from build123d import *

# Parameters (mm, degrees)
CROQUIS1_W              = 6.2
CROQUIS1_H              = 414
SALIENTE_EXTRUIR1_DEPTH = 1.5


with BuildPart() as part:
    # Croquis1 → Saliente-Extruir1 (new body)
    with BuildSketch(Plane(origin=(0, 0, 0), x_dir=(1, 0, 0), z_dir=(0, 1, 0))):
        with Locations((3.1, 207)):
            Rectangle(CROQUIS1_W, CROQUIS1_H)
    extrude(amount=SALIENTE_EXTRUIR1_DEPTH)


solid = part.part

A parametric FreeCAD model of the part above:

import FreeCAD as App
import Part
import Sketcher
from FreeCAD import Vector

doc = App.newDocument("Part")
body = doc.addObject("PartDesign::Body", "Body")

sketch1 = body.newObject("Sketcher::SketchObject", "Sketch")
sketch1.AttachmentSupport = (doc.getObject("XZ_Plane"), [""])
sketch1.MapMode = "FlatFace"
sketch1.addGeometry(Part.LineSegment(Vector(0, -414, 0), Vector(0, 0, 0)), False)
sketch1.addGeometry(Part.LineSegment(Vector(0, 0, 0), Vector(6, 0, 0)), False)
sketch1.addGeometry(Part.LineSegment(Vector(6, 0, 0), Vector(6, -414, 0)), False)
sketch1.addGeometry(Part.LineSegment(Vector(6, -414, 0), Vector(0, -414, 0)), False)
sketch1.addConstraint(Sketcher.Constraint("Coincident", 0, 2, 1, 1))
sketch1.addConstraint(Sketcher.Constraint("Coincident", 1, 2, 2, 1))
sketch1.addConstraint(Sketcher.Constraint("Coincident", 2, 2, 3, 1))
sketch1.addConstraint(Sketcher.Constraint("Coincident", 3, 2, 0, 1))
sketch1.addConstraint(Sketcher.Constraint("Vertical", 0))
sketch1.addConstraint(Sketcher.Constraint("Horizontal", 1))
sketch1.addConstraint(Sketcher.Constraint("Vertical", 2))
sketch1.addConstraint(Sketcher.Constraint("Horizontal", 3))
sketch1.addConstraint(Sketcher.Constraint("Coincident", 0, 2, -1, 1))
sketch1.addConstraint(Sketcher.Constraint("DistanceY", 0, 1, 0, 2, 414.0))
sketch1.addConstraint(Sketcher.Constraint("DistanceX", 1, 1, 1, 2, 6.2))
pad1 = body.newObject("PartDesign::Pad", "Pad")
pad1.Profile = sketch1
pad1.Length = 1.5
pad1.Reversed = True

doc.recompute()
